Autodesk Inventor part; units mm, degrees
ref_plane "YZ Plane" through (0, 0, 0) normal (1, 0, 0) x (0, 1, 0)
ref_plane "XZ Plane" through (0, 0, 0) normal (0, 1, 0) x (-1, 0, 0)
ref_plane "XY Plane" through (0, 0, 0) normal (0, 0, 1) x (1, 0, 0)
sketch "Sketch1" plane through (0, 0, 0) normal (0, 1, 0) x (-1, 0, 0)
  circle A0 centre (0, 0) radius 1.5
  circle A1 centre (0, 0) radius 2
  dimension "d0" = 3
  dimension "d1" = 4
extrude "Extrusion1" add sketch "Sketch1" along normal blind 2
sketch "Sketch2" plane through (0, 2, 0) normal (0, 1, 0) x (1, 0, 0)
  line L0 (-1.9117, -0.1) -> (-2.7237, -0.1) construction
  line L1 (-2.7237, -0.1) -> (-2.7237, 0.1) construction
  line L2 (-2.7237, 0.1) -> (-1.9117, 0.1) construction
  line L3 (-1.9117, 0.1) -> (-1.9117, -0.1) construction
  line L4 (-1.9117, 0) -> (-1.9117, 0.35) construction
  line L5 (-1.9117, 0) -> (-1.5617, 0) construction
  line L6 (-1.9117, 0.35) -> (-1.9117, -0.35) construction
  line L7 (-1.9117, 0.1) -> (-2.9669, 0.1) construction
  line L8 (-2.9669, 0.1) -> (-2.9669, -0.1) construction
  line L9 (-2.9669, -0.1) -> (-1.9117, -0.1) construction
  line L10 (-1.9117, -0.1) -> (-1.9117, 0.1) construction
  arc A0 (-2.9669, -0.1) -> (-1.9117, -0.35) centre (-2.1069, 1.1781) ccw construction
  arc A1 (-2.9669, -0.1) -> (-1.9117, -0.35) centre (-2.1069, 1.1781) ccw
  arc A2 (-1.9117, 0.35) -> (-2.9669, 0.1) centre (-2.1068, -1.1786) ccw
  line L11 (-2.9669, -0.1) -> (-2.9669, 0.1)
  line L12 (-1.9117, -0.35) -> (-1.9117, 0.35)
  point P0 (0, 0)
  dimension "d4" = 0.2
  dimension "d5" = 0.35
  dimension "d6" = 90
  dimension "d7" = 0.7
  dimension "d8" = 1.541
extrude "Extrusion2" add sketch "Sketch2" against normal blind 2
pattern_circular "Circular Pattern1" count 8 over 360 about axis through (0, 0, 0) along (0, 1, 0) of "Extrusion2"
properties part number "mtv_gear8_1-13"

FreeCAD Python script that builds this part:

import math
import FreeCAD as App
import Part
import Sketcher
from FreeCAD import Vector
Q = App.Units.Quantity

doc = App.newDocument("Part")
params = doc.addObject("Spreadsheet::Sheet", "Params")
for row, (alias, value) in enumerate([
    ("sketch1_diameter", "4 mm"),
    ("sketch1_diameter2", "3 mm"),
    ("pad1_length", "2 mm"),
    ("sketch2_height", "0.2 mm"),
    ("sketch2_height2", "0.7 mm"),
    ("pad2_length", "2 mm"),
], start=1):
    params.set(f"A{row}", alias)
    params.set(f"B{row}", "=" + value)
    params.setAlias(f"B{row}", alias)

body = doc.addObject("PartDesign::Body", "Body")

# Sketch on XZ plane
sketch1 = body.newObject("Sketcher::SketchObject", "Sketch")
sketch1.AttachmentSupport = (doc.getObject("XZ_Plane"), [""])
sketch1.MapMode = "FlatFace"
sketch1.addGeometry([
    Part.Circle(Vector(0, 0, 0), Vector(0, 0, 1), 2),
    Part.Circle(Vector(0, 0, 0), Vector(0, 0, 1), 1.5),
], False)
sketch1.addConstraint([
    Sketcher.Constraint("Coincident", 0, 3, -1, 1),
    Sketcher.Constraint("Coincident", 1, 3, -1, 1),
    Sketcher.Constraint("Diameter", 0, Q("4 mm")),
    Sketcher.Constraint("Diameter", 1, Q("3 mm")),
])
sketch1.setExpression("Constraints[2]", "Params.sketch1_diameter")
sketch1.setExpression("Constraints[3]", "Params.sketch1_diameter2")
pad1 = body.newObject("PartDesign::Pad", "Pad")
pad1.Profile = sketch1
pad1.setExpression("Length", "Params.pad1_length")
pad1.Reversed = True

# Sketch on XZ plane
sketch2 = body.newObject("Sketcher::SketchObject", "Sketch001")
sketch2.AttachmentSupport = (doc.getObject("XZ_Plane"), [""])
sketch2.MapMode = "FlatFace"
sketch2.AttachmentOffset = App.Placement(Vector(0, 0, -2), App.Rotation())
sketch2.addGeometry([
    Part.LineSegment(Vector(-2.9669, -0.1, 0), Vector(-2.9669, 0.1, 0)),
    Part.ArcOfCircle(Part.Circle(Vector(-2.1069, -1.1781, 0), Vector(0, 0, 1), 1.5405), math.radians(82.720442), math.radians(123.935577)),
    Part.LineSegment(Vector(-1.9117, 0.35, 0), Vector(-1.9117, -0.35, 0)),
    Part.ArcOfCircle(Part.Circle(Vector(-2.1068, 1.1786, 0), Vector(0, 0, 1), 1.541), math.radians(-123.928283), math.radians(-82.726486)),
], False)
sketch2.addConstraint([
    Sketcher.Constraint("Coincident", 0, 2, 1, 2),
    Sketcher.Constraint("Coincident", 1, 1, 2, 1),
    Sketcher.Constraint("Coincident", 2, 2, 3, 2),
    Sketcher.Constraint("Coincident", 3, 1, 0, 1),
    Sketcher.Constraint("Vertical", 0),
    Sketcher.Constraint("Vertical", 2),
    Sketcher.Constraint("Vertical", 1, 3, 3, 3),
    Sketcher.Constraint("DistanceY", 0, 1, 0, 2, Q("0.2 mm")),
    Sketcher.Constraint("DistanceY", 2, 2, 2, 1, Q("0.7 mm")),
    Sketcher.Constraint("Radius", 3, Q("1.541 mm")),
    Sketcher.Constraint("Radius", 1, Q("1.5405 mm")),
    Sketcher.Constraint("DistanceY", -1, 1, 1, 1, Q("0.35 mm")),
    Sketcher.Constraint("DistanceX", 0, 2, 3, 3, Q("0.86 mm")),
    Sketcher.Constraint("DistanceX", 1, 3, -1, 1, Q("2.107 mm")),
])
sketch2.setExpression("Constraints[7]", "Params.sketch2_height")
sketch2.setExpression("Constraints[8]", "Params.sketch2_height2")
pad2 = body.newObject("PartDesign::Pad", "Pad001")
pad2.Profile = sketch2
pad2.setExpression("Length", "Params.pad2_length")
doc.recompute()

polarpattern = body.newObject("PartDesign::PolarPattern", "PolarPattern")
polarpattern.Originals = [pad2]
polarpattern.Axis = (doc.getObject("Y_Axis"), [""])
polarpattern.Angle = 360
polarpattern.Occurrences = 8
body.Tip = polarpattern

doc.recompute()
